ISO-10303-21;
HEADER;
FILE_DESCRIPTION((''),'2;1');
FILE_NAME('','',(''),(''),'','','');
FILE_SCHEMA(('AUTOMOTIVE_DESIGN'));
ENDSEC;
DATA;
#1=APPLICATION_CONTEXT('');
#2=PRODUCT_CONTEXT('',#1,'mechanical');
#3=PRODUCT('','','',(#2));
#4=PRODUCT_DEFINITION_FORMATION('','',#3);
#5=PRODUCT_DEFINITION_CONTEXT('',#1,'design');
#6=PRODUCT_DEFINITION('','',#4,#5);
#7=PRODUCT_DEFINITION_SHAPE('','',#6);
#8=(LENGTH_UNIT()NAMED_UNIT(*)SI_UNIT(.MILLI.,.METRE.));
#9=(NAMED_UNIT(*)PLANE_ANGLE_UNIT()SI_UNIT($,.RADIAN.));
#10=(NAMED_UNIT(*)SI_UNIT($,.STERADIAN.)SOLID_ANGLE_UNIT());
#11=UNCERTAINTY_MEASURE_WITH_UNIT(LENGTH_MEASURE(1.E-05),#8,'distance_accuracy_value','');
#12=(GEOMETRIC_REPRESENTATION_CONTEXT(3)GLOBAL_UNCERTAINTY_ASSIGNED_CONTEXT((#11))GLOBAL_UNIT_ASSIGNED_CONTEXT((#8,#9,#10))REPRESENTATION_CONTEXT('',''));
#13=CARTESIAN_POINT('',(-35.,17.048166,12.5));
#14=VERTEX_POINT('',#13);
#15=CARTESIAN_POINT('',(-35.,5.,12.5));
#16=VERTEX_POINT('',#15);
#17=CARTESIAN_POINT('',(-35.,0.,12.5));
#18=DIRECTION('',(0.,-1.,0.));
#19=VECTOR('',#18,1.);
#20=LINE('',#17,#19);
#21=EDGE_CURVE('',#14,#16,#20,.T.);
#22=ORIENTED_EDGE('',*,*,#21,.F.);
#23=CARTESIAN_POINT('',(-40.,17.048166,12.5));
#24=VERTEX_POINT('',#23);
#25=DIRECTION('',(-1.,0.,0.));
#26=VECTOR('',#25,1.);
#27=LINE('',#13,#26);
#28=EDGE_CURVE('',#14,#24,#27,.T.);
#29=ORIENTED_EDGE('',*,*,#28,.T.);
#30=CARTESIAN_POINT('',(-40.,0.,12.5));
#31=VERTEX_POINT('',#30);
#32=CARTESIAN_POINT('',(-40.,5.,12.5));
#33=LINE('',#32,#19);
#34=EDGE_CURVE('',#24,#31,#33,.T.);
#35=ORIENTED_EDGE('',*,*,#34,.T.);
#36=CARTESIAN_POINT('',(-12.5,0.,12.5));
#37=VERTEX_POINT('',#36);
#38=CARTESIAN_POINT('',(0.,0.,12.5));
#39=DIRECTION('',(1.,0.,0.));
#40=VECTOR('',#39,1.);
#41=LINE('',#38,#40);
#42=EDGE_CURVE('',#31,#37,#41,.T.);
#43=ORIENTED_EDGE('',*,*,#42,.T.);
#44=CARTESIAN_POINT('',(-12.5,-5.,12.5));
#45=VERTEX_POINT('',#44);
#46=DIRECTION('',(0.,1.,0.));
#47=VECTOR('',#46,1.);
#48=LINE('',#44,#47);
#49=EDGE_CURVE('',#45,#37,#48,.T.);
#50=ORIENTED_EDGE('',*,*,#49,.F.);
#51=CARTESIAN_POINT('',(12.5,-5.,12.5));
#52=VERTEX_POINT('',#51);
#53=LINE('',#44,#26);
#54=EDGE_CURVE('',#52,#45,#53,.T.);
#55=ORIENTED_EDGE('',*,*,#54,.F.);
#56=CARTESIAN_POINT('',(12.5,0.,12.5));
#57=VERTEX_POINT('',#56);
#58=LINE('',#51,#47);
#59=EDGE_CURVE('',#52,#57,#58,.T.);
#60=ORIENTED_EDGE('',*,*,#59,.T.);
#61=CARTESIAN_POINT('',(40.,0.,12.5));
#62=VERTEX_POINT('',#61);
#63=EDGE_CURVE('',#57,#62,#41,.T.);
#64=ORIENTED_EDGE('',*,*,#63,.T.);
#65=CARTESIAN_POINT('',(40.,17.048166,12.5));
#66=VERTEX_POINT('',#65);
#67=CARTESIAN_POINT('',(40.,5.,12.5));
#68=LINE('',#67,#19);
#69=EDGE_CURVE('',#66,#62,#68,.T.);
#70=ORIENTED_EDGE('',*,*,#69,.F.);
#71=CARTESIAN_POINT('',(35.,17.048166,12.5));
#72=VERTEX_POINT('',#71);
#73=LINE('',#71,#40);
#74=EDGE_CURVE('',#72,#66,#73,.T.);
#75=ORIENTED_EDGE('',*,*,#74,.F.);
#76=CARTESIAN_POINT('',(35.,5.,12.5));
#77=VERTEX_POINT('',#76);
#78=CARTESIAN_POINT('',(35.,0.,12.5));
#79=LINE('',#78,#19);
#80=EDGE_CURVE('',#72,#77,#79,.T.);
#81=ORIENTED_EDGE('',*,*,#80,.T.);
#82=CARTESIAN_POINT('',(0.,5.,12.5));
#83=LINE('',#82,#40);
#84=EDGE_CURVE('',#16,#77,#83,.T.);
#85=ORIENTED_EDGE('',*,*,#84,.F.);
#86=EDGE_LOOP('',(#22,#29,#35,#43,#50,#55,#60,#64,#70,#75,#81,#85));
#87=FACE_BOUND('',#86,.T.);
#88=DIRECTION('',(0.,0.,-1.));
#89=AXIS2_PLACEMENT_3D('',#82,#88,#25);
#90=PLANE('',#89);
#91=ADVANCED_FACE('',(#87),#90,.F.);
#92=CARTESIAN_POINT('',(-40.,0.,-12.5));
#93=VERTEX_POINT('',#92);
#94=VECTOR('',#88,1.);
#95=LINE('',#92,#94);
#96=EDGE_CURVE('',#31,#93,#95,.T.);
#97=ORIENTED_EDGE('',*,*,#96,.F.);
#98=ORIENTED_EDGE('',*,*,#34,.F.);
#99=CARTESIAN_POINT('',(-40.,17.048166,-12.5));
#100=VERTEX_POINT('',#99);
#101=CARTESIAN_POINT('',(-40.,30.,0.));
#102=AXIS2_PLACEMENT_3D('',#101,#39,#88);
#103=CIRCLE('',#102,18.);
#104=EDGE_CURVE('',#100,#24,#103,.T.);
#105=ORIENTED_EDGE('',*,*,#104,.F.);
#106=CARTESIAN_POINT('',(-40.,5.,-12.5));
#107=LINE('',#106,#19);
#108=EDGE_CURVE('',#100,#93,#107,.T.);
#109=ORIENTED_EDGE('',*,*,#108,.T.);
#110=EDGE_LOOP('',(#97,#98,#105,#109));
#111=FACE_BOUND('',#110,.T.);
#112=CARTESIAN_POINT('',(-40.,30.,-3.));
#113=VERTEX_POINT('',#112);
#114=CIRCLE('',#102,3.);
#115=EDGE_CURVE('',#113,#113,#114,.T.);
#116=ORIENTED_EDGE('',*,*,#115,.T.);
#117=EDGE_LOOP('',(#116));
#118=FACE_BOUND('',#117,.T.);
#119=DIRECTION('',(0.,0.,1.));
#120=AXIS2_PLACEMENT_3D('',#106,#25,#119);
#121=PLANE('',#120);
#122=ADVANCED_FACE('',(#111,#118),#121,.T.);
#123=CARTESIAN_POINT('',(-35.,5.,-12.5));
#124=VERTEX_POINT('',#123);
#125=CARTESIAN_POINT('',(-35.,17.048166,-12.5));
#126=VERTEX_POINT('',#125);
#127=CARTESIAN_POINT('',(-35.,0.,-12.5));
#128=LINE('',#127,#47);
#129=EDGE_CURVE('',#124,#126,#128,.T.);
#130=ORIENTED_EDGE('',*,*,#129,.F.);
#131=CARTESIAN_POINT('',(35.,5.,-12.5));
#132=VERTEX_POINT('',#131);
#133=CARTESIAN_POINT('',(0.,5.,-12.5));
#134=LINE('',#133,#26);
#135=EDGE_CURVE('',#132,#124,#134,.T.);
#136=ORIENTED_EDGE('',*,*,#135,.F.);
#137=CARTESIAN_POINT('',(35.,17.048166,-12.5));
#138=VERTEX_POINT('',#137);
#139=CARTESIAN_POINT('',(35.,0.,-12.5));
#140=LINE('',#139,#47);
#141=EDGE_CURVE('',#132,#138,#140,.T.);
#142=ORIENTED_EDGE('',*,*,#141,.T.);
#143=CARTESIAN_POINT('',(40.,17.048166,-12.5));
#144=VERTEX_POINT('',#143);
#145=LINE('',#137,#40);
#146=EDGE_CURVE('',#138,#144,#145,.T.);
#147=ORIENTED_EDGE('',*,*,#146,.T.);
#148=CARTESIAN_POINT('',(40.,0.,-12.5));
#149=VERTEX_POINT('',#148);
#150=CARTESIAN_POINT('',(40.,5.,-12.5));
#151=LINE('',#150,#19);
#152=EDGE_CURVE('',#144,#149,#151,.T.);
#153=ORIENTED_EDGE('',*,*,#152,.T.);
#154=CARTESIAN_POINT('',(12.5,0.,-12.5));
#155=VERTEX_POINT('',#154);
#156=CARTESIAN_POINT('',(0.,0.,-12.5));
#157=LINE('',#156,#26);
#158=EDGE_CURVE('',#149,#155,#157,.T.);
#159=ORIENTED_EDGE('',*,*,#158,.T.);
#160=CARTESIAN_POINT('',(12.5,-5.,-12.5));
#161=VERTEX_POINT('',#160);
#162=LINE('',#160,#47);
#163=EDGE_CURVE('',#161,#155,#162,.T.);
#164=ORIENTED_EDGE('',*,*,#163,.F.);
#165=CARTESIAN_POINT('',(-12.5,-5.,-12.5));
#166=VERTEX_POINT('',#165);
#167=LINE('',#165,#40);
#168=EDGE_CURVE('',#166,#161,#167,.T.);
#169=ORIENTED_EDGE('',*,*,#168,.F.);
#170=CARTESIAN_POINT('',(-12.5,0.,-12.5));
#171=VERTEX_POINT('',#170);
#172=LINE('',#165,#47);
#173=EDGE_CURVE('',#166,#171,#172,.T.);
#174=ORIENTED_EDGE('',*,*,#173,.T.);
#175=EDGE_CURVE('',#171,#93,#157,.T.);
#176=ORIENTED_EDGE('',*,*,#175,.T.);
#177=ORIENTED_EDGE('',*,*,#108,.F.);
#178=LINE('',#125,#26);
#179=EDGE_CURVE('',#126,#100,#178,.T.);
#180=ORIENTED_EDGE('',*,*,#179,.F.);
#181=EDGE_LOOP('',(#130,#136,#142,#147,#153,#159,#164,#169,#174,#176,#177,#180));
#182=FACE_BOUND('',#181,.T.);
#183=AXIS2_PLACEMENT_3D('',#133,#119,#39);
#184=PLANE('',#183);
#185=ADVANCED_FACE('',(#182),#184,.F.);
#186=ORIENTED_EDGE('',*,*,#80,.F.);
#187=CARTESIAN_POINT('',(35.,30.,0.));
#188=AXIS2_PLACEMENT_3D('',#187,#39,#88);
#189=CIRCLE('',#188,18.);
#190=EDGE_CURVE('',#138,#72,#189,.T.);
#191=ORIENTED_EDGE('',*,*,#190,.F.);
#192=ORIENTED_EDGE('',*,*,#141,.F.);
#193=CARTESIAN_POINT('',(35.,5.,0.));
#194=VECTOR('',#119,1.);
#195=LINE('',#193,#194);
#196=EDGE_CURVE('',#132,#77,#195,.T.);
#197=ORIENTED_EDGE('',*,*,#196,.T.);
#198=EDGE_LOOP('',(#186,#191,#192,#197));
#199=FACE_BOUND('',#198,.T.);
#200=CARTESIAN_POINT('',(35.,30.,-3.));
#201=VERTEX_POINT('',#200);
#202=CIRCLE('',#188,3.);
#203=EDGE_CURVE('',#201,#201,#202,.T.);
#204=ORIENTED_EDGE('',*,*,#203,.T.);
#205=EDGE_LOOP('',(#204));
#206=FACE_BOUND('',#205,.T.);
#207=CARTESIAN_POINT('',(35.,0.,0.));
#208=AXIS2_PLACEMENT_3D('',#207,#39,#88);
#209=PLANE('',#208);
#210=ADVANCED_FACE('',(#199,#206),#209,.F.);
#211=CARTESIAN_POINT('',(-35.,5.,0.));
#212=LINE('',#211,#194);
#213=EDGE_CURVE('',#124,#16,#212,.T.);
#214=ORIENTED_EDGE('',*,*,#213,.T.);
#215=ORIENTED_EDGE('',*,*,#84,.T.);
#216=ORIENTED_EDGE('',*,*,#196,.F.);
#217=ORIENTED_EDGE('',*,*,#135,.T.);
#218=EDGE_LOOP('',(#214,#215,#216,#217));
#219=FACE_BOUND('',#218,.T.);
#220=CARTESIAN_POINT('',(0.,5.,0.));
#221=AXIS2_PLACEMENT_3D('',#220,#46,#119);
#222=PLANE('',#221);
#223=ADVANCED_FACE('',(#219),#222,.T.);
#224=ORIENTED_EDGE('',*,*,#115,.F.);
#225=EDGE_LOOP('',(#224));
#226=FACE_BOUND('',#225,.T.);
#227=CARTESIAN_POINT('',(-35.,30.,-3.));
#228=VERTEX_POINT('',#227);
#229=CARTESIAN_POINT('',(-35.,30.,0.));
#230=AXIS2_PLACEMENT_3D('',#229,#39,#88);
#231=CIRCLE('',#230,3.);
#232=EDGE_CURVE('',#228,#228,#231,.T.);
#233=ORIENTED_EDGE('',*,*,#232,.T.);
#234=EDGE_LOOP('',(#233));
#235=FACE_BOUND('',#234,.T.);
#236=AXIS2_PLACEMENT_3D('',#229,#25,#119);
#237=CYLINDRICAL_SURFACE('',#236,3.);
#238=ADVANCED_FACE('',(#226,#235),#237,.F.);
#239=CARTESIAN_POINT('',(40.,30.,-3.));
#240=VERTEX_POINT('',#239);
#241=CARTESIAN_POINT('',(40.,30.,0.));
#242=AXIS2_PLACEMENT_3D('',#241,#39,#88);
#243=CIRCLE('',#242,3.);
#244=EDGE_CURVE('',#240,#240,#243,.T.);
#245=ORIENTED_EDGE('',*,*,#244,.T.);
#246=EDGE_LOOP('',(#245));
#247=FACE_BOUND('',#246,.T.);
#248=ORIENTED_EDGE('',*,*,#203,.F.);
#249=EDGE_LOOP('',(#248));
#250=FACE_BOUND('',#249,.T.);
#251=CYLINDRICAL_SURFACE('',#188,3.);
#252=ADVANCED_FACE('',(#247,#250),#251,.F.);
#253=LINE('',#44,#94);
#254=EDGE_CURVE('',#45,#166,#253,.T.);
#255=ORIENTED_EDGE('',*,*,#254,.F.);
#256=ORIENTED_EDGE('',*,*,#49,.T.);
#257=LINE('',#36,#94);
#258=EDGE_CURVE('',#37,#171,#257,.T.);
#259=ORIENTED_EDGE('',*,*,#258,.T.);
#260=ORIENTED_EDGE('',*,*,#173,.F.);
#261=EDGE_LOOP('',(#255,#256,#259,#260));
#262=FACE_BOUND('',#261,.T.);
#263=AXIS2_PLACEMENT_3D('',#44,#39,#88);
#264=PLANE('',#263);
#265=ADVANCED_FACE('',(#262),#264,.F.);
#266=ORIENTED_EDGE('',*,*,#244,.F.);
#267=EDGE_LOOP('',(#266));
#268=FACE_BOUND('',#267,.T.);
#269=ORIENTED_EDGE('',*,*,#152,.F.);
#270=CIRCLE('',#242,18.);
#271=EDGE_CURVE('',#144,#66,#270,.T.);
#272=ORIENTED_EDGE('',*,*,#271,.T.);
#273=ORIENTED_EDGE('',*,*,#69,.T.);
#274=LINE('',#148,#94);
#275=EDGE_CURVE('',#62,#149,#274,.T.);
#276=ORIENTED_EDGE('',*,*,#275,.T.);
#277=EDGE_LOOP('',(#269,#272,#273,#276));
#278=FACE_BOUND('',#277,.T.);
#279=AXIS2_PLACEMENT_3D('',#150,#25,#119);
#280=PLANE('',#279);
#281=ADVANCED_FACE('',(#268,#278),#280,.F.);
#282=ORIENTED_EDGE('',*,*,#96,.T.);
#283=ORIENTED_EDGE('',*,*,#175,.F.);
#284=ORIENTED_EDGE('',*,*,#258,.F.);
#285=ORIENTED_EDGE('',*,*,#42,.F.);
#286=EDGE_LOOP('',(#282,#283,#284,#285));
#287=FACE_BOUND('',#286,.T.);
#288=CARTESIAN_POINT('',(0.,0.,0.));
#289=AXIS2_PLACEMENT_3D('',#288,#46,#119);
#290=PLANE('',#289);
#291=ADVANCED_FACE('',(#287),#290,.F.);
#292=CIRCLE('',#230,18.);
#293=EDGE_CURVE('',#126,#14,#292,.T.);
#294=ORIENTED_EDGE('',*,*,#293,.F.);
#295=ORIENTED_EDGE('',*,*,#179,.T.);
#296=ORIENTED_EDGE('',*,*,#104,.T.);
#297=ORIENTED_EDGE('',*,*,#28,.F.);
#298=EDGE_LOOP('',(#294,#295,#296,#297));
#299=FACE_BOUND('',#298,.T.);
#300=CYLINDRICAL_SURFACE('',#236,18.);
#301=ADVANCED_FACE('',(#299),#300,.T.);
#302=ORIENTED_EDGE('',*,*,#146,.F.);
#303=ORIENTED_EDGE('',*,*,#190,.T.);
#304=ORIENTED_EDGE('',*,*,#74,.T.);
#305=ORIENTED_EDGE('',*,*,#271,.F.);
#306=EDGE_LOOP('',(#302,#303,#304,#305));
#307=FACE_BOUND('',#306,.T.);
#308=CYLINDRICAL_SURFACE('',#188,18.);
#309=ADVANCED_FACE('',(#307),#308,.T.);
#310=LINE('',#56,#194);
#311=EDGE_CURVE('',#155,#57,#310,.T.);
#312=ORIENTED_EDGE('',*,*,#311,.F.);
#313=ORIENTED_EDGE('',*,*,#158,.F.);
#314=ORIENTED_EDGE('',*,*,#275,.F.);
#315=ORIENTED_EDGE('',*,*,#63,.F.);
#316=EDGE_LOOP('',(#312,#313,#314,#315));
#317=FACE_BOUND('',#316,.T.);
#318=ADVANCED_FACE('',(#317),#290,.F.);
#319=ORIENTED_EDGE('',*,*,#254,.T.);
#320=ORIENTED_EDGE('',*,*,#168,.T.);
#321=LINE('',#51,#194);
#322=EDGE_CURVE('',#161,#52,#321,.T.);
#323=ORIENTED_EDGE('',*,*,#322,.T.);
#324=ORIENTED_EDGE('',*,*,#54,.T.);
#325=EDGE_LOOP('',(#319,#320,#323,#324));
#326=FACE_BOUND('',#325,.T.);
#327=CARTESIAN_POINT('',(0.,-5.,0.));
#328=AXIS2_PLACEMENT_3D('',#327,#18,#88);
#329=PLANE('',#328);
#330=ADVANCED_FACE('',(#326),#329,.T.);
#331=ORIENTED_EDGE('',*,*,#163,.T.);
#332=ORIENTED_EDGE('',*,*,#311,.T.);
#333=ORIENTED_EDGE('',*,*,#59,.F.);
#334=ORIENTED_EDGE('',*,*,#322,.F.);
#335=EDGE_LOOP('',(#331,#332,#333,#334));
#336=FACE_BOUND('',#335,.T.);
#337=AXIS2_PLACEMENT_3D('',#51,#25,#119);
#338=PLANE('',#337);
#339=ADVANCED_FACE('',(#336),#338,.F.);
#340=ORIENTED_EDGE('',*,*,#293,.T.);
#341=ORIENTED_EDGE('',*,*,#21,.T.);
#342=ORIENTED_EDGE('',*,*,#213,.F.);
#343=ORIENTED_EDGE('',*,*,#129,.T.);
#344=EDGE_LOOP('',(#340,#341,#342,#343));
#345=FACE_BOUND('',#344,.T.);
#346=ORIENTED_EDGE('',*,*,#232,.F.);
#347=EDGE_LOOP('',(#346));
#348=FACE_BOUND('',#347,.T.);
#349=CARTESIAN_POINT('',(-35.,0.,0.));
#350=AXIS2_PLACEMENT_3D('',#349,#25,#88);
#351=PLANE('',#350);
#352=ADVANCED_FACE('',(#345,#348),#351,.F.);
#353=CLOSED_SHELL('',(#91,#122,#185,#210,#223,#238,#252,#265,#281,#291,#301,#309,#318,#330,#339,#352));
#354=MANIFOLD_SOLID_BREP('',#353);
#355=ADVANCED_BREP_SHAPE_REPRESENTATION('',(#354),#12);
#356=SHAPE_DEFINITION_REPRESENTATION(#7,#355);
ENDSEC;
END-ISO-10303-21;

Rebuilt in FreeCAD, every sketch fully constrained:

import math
import FreeCAD as App
import Part
import Sketcher
from FreeCAD import Vector


def add_polygon(sketch, points):
    """Adds a closed chain of lines whose ends are joined by coincident constraints."""
    first, n = sketch.GeometryCount, len(points)
    for a, b in zip(points, points[1:] + points[:1]):
        sketch.addGeometry(Part.LineSegment(App.Vector(*a, 0), App.Vector(*b, 0)), False)
    for i in range(n):
        sketch.addConstraint(Sketcher.Constraint("Coincident", first + i, 2, first + (i + 1) % n, 1))

doc = App.newDocument("Part")
body = doc.addObject("PartDesign::Body", "Body")

# Sketch on XZ plane
sketch1 = body.newObject("Sketcher::SketchObject", "Sketch")
sketch1.AttachmentSupport = (doc.getObject("XZ_Plane"), [""])
sketch1.MapMode = "FlatFace"
add_polygon(sketch1, [(0, -12), (0, 12), (40, 12), (40, -12)])  # lines 0-3
sketch1.addConstraint([
    Sketcher.Constraint("Vertical", 0),
    Sketcher.Constraint("Horizontal", 1),
    Sketcher.Constraint("Vertical", 2),
    Sketcher.Constraint("Horizontal", 3),
    Sketcher.Constraint("Symmetric", 0, 2, 3, 2, -1, 1),
    Sketcher.Constraint("DistanceX", 1, 1, 1, 2, 40.0),
    Sketcher.Constraint("DistanceY", 0, 1, 0, 2, 25.0),
])
pad1 = body.newObject("PartDesign::Pad", "Pad")
pad1.Profile = sketch1
pad1.Length = 5
pad1.Reversed = True

# Sketch on YZ plane
sketch2 = body.newObject("Sketcher::SketchObject", "Sketch001")
sketch2.AttachmentSupport = (doc.getObject("YZ_Plane"), [""])
sketch2.MapMode = "FlatFace"
sketch2.AttachmentOffset = App.Placement(Vector(0, 0, 40), App.Rotation())
sketch2.addGeometry([
    Part.LineSegment(Vector(17, 12.5, 0), Vector(5, 12.5, 0)),  # 0
    Part.LineSegment(Vector(5, 12.5, 0), Vector(5, -12.5, 0)),  # 1
    Part.LineSegment(Vector(5, -12.5, 0), Vector(17, -12.5, 0)),  # 2
    Part.ArcOfCircle(Part.Circle(Vector(30, 0, 0), Vector(0, 0, 1), 18), math.radians(-136), math.radians(136)),  # 3
    Part.Circle(Vector(30, 0, 0), Vector(0, 0, 1), 3),  # 4
], False)
sketch2.addConstraint([
    Sketcher.Constraint("Coincident", 0, 2, 1, 1),
    Sketcher.Constraint("Coincident", 1, 2, 2, 1),
    Sketcher.Constraint("Coincident", 2, 2, 3, 1),
    Sketcher.Constraint("Coincident", 3, 2, 0, 1),
    Sketcher.Constraint("Horizontal", 0),
    Sketcher.Constraint("Vertical", 1),
    Sketcher.Constraint("Horizontal", 2),
    Sketcher.Constraint("Coincident", 4, 3, 3, 3),
    Sketcher.Constraint("Symmetric", 2, 2, 3, 2, -1),
    Sketcher.Constraint("Diameter", 4, 6.0),
    Sketcher.Constraint("Radius", 3, 18.0),
    Sketcher.Constraint("DistanceY", 1, 2, 1, 1, 25.0),
    Sketcher.Constraint("DistanceX", -1, 1, 3, 3, 30.0),
    Sketcher.Constraint("DistanceX", -1, 1, 0, 2, 5.0),
])
pad2 = body.newObject("PartDesign::Pad", "Pad001")
pad2.Profile = sketch2
pad2.Length = 5
pad2.Reversed = True
doc.recompute()

mirrored = body.newObject("PartDesign::Mirrored", "Mirrored")
mirrored.Originals = [pad1, pad2]
mirrored.MirrorPlane = (doc.getObject("YZ_Plane"), [""])
body.Tip = mirrored

# Sketch on XZ plane
sketch3 = body.newObject("Sketcher::SketchObject", "Sketch002")
sketch3.AttachmentSupport = (doc.getObject("XZ_Plane"), [""])
sketch3.MapMode = "FlatFace"
add_polygon(sketch3, [(-12, 12), (-12, -12), (12, -12), (12, 12)])  # lines 0-3
sketch3.addConstraint([
    Sketcher.Constraint("Vertical", 0),
    Sketcher.Constraint("Horizontal", 1),
    Sketcher.Constraint("Vertical", 2),
    Sketcher.Constraint("Horizontal", 3),
    Sketcher.Constraint("Symmetric", 0, 2, 2, 2, -1, 1),
    Sketcher.Constraint("Equal", 3, 0),
    Sketcher.Constraint("DistanceX", 1, 1, 1, 2, 25.0),
])
pad3 = body.newObject("PartDesign::Pad", "Pad002")
pad3.Profile = sketch3
pad3.Length = 5

doc.recompute()
